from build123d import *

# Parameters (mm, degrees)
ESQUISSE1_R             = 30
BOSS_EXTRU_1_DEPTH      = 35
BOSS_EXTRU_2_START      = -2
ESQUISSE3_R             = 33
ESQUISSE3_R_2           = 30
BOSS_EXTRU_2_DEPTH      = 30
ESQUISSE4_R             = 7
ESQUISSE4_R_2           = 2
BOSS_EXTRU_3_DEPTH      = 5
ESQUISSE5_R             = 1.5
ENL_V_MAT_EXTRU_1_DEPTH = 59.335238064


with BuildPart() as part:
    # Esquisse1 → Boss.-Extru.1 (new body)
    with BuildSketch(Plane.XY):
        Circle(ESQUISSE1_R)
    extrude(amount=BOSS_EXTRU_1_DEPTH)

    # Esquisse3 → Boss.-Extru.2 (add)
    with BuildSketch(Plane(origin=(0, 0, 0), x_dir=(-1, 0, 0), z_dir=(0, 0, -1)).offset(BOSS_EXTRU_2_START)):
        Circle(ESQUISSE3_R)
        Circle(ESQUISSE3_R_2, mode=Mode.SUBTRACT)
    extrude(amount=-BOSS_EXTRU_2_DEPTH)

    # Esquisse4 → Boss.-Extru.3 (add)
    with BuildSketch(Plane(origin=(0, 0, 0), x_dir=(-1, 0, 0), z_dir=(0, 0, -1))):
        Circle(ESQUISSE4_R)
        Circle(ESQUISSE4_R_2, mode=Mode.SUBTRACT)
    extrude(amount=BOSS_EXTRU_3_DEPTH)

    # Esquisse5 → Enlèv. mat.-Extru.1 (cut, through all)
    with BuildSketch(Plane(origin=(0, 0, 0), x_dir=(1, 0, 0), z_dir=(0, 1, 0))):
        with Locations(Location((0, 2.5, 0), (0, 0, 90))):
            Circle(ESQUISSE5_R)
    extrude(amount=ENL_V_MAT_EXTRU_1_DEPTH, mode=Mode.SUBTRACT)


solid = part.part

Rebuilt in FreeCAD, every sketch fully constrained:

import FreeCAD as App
import Part
import Sketcher
from FreeCAD import Vector

doc = App.newDocument("Part")
body = doc.addObject("PartDesign::Body", "Body")

# Sketch on XY plane
sketch1 = body.newObject("Sketcher::SketchObject", "Sketch")
sketch1.AttachmentSupport = (doc.getObject("XY_Plane"), [""])
sketch1.MapMode = "FlatFace"
sketch1.addGeometry(Part.Circle(Vector(0, 0, 0), Vector(0, 0, 1), 30), False)
sketch1.addConstraint(Sketcher.Constraint("Coincident", 0, 3, -1, 1))
sketch1.addConstraint(Sketcher.Constraint("Diameter", 0, 60.0))
pad1 = body.newObject("PartDesign::Pad", "Pad")
pad1.Profile = sketch1
pad1.Length = 35

# Sketch on XY plane
sketch2 = body.newObject("Sketcher::SketchObject", "Sketch001")
sketch2.AttachmentSupport = (doc.getObject("XY_Plane"), [""])
sketch2.MapMode = "FlatFace"
sketch2.AttachmentOffset = App.Placement(Vector(0, 0, 2), App.Rotation())
sketch2.addGeometry(Part.Circle(Vector(0, 0, 0), Vector(0, 0, 1), 33), False)
sketch2.addGeometry(Part.Circle(Vector(0, 0, 0), Vector(0, 0, 1), 30), False)
sketch2.addConstraint(Sketcher.Constraint("Coincident", 0, 3, -1, 1))
sketch2.addConstraint(Sketcher.Constraint("Coincident", 1, 3, -1, 1))
sketch2.addConstraint(Sketcher.Constraint("Diameter", 0, 66.0))
sketch2.addConstraint(Sketcher.Constraint("Diameter", 1, 60.0))
pad2 = body.newObject("PartDesign::Pad", "Pad001")
pad2.Profile = sketch2
pad2.Length = 30

# Sketch on XY plane
sketch3 = body.newObject("Sketcher::SketchObject", "Sketch002")
sketch3.AttachmentSupport = (doc.getObject("XY_Plane"), [""])
sketch3.MapMode = "FlatFace"
sketch3.addGeometry(Part.Circle(Vector(0, 0, 0), Vector(0, 0, 1), 7), False)
sketch3.addGeometry(Part.Circle(Vector(0, 0, 0), Vector(0, 0, 1), 2), False)
sketch3.addConstraint(Sketcher.Constraint("Coincident", 0, 3, -1, 1))
sketch3.addConstraint(Sketcher.Constraint("Coincident", 1, 3, -1, 1))
sketch3.addConstraint(Sketcher.Constraint("Diameter", 0, 14.0))
sketch3.addConstraint(Sketcher.Constraint("Diameter", 1, 4.0))
pad3 = body.newObject("PartDesign::Pad", "Pad002")
pad3.Profile = sketch3
pad3.Length = 5
pad3.Reversed = True

# Sketch on XZ plane
sketch4 = body.newObject("Sketcher::SketchObject", "Sketch003")
sketch4.AttachmentSupport = (doc.getObject("XZ_Plane"), [""])
sketch4.MapMode = "FlatFace"
sketch4.addGeometry(Part.Circle(Vector(0, -2.5, 0), Vector(0, 0, 1), 1.5), False)
sketch4.addConstraint(Sketcher.Constraint("PointOnObject", 0, 3, -2))
sketch4.addConstraint(Sketcher.Constraint("Diameter", 0, 3.0))
sketch4.addConstraint(Sketcher.Constraint("DistanceY", 0, 3, -1, 1, 2.5))
pocket1 = body.newObject("PartDesign::Pocket", "Pocket")
pocket1.Profile = sketch4
pocket1.Type = "ThroughAll"

doc.recompute()
